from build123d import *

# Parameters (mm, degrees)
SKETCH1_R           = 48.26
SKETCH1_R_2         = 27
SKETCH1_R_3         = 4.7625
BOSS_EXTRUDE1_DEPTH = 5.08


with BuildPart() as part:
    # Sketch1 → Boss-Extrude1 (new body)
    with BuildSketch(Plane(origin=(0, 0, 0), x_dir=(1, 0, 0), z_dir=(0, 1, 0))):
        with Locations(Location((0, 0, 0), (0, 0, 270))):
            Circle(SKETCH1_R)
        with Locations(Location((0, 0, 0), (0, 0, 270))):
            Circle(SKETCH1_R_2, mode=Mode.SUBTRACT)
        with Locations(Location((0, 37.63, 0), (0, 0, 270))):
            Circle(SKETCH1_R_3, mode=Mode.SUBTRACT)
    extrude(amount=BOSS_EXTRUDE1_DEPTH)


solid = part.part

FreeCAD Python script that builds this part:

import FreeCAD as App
import Part
import Sketcher

V = App.Vector
Q = App.Units.Quantity

doc = App.newDocument("Part")
body = doc.addObject("PartDesign::Body", "Body")

# Sketch on XZ plane
sketch1 = body.newObject("Sketcher::SketchObject", "Sketch")
sketch1.AttachmentSupport = (doc.getObject("XZ_Plane"), [""])
sketch1.MapMode = "FlatFace"
sketch1.addGeometry([
    Part.Circle(V(0, 0, 0), V(0, 0, 1), 48.3),
    Part.Circle(V(0, -37.6, 0), V(0, 0, 1), 4.8),
    Part.Circle(V(0, 0, 0), V(0, 0, 1), 27),
], False)
sketch1.addConstraint([
    Sketcher.Constraint("Coincident", 0, 3, -1, 1),
    Sketcher.Constraint("Coincident", 2, 3, -1, 1),
    Sketcher.Constraint("PointOnObject", 1, 3, -2),
    Sketcher.Constraint("Diameter", 0, Q("3.8 in")),
    Sketcher.Constraint("Diameter", 1, Q("0.375 in")),
    Sketcher.Constraint("Diameter", 2, 54.0),
    Sketcher.Constraint("DistanceY", 1, 3, -1, 1, 37.63),
])
pad1 = body.newObject("PartDesign::Pad", "Pad")
pad1.Profile = sketch1
pad1.Length = Q("0.2 in")
pad1.Reversed = True

doc.recompute()
